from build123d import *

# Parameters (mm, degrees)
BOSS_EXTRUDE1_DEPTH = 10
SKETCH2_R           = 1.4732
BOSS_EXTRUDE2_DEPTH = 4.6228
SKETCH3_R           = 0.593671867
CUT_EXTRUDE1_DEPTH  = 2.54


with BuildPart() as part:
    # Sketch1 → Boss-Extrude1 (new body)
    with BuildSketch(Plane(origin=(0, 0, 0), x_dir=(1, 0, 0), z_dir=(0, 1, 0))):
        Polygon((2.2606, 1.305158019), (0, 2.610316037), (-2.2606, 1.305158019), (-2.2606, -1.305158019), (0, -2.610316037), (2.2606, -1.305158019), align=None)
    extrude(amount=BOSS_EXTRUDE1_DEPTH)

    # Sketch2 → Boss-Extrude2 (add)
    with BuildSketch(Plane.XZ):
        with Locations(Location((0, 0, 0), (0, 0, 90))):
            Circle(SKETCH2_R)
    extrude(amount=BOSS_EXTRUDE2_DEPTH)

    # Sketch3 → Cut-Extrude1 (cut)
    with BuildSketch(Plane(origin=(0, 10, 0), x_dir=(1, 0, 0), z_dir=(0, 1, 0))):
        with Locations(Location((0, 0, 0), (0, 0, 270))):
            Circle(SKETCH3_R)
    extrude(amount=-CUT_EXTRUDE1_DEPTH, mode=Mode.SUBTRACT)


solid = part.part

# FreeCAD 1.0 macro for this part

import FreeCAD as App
import Part
import Sketcher
Q = App.Units.Quantity


def add_polygon(sketch, points):
    """Adds a closed chain of lines whose ends are joined by coincident constraints."""
    first, n = sketch.GeometryCount, len(points)
    for a, b in zip(points, points[1:] + points[:1]):
        sketch.addGeometry(Part.LineSegment(App.Vector(*a, 0), App.Vector(*b, 0)), False)
    for i in range(n):
        sketch.addConstraint(Sketcher.Constraint("Coincident", first + i, 2, first + (i + 1) % n, 1))

doc = App.newDocument("Part")
body = doc.addObject("PartDesign::Body", "Body")

sketch1 = body.newObject("Sketcher::SketchObject", "Sketch")
sketch1.AttachmentSupport = (doc.getObject("XZ_Plane"), [""])
sketch1.MapMode = "FlatFace"
add_polygon(sketch1, [(2.3, -1.3), (0, -2.6), (-2.3, -1.3), (-2.3, 1.3), (0, 2.6), (2.3, 1.3)])
sketch1.addConstraint([
    Sketcher.Constraint("Vertical", 2),
    Sketcher.Constraint("Vertical", 5),
    Sketcher.Constraint("Symmetric", 0, 2, 3, 2, -1, 1),
    Sketcher.Constraint("Symmetric", 1, 2, 4, 2, -1, 1),
    Sketcher.Constraint("PointOnObject", 0, 2, -2),
    Sketcher.Constraint("Parallel", 0, 3),
    Sketcher.Constraint("Horizontal", 2, 2, 4, 2),
    Sketcher.Constraint("Angle", 0, Q("-150 deg")),
    Sketcher.Constraint("DistanceX", 1, 2, -1, 1, Q("0.089 in")),
    Sketcher.Constraint("DistanceY", 2, 1, 2, 2, 2.610316),
])
pad1 = body.newObject("PartDesign::Pad", "Pad")
pad1.Profile = sketch1
pad1.Length = 10
pad1.Reversed = True

sketch2 = body.newObject("Sketcher::SketchObject", "Sketch001")
sketch2.AttachmentSupport = (doc.getObject("XZ_Plane"), [""])
sketch2.MapMode = "FlatFace"
sketch2.addGeometry(Part.Circle(App.Vector(0, 0, 0), App.Vector(0, 0, 1), 1.5), False)
sketch2.addConstraint([
    Sketcher.Constraint("Coincident", 0, 3, -1, 1),
    Sketcher.Constraint("Diameter", 0, Q("0.116 in")),
])
pad2 = body.newObject("PartDesign::Pad", "Pad001")
pad2.Profile = sketch2
pad2.Length = Q("0.182 in")

sketch3 = body.newObject("Sketcher::SketchObject", "Sketch002")
sketch3.AttachmentSupport = (doc.getObject("XZ_Plane"), [""])
sketch3.MapMode = "FlatFace"
sketch3.AttachmentOffset = App.Placement(App.Vector(0, 0, -10), App.Rotation())
sketch3.addGeometry(Part.Circle(App.Vector(0, 0, 0), App.Vector(0, 0, 1), 0.6), False)
sketch3.addConstraint([
    Sketcher.Constraint("Coincident", 0, 3, -1, 1),
    Sketcher.Constraint("Diameter", 0, 1.187344),
])
pocket1 = body.newObject("PartDesign::Pocket", "Pocket")
pocket1.Profile = sketch3
pocket1.Length = Q("0.1 in")
pocket1.Reversed = True

doc.recompute()
